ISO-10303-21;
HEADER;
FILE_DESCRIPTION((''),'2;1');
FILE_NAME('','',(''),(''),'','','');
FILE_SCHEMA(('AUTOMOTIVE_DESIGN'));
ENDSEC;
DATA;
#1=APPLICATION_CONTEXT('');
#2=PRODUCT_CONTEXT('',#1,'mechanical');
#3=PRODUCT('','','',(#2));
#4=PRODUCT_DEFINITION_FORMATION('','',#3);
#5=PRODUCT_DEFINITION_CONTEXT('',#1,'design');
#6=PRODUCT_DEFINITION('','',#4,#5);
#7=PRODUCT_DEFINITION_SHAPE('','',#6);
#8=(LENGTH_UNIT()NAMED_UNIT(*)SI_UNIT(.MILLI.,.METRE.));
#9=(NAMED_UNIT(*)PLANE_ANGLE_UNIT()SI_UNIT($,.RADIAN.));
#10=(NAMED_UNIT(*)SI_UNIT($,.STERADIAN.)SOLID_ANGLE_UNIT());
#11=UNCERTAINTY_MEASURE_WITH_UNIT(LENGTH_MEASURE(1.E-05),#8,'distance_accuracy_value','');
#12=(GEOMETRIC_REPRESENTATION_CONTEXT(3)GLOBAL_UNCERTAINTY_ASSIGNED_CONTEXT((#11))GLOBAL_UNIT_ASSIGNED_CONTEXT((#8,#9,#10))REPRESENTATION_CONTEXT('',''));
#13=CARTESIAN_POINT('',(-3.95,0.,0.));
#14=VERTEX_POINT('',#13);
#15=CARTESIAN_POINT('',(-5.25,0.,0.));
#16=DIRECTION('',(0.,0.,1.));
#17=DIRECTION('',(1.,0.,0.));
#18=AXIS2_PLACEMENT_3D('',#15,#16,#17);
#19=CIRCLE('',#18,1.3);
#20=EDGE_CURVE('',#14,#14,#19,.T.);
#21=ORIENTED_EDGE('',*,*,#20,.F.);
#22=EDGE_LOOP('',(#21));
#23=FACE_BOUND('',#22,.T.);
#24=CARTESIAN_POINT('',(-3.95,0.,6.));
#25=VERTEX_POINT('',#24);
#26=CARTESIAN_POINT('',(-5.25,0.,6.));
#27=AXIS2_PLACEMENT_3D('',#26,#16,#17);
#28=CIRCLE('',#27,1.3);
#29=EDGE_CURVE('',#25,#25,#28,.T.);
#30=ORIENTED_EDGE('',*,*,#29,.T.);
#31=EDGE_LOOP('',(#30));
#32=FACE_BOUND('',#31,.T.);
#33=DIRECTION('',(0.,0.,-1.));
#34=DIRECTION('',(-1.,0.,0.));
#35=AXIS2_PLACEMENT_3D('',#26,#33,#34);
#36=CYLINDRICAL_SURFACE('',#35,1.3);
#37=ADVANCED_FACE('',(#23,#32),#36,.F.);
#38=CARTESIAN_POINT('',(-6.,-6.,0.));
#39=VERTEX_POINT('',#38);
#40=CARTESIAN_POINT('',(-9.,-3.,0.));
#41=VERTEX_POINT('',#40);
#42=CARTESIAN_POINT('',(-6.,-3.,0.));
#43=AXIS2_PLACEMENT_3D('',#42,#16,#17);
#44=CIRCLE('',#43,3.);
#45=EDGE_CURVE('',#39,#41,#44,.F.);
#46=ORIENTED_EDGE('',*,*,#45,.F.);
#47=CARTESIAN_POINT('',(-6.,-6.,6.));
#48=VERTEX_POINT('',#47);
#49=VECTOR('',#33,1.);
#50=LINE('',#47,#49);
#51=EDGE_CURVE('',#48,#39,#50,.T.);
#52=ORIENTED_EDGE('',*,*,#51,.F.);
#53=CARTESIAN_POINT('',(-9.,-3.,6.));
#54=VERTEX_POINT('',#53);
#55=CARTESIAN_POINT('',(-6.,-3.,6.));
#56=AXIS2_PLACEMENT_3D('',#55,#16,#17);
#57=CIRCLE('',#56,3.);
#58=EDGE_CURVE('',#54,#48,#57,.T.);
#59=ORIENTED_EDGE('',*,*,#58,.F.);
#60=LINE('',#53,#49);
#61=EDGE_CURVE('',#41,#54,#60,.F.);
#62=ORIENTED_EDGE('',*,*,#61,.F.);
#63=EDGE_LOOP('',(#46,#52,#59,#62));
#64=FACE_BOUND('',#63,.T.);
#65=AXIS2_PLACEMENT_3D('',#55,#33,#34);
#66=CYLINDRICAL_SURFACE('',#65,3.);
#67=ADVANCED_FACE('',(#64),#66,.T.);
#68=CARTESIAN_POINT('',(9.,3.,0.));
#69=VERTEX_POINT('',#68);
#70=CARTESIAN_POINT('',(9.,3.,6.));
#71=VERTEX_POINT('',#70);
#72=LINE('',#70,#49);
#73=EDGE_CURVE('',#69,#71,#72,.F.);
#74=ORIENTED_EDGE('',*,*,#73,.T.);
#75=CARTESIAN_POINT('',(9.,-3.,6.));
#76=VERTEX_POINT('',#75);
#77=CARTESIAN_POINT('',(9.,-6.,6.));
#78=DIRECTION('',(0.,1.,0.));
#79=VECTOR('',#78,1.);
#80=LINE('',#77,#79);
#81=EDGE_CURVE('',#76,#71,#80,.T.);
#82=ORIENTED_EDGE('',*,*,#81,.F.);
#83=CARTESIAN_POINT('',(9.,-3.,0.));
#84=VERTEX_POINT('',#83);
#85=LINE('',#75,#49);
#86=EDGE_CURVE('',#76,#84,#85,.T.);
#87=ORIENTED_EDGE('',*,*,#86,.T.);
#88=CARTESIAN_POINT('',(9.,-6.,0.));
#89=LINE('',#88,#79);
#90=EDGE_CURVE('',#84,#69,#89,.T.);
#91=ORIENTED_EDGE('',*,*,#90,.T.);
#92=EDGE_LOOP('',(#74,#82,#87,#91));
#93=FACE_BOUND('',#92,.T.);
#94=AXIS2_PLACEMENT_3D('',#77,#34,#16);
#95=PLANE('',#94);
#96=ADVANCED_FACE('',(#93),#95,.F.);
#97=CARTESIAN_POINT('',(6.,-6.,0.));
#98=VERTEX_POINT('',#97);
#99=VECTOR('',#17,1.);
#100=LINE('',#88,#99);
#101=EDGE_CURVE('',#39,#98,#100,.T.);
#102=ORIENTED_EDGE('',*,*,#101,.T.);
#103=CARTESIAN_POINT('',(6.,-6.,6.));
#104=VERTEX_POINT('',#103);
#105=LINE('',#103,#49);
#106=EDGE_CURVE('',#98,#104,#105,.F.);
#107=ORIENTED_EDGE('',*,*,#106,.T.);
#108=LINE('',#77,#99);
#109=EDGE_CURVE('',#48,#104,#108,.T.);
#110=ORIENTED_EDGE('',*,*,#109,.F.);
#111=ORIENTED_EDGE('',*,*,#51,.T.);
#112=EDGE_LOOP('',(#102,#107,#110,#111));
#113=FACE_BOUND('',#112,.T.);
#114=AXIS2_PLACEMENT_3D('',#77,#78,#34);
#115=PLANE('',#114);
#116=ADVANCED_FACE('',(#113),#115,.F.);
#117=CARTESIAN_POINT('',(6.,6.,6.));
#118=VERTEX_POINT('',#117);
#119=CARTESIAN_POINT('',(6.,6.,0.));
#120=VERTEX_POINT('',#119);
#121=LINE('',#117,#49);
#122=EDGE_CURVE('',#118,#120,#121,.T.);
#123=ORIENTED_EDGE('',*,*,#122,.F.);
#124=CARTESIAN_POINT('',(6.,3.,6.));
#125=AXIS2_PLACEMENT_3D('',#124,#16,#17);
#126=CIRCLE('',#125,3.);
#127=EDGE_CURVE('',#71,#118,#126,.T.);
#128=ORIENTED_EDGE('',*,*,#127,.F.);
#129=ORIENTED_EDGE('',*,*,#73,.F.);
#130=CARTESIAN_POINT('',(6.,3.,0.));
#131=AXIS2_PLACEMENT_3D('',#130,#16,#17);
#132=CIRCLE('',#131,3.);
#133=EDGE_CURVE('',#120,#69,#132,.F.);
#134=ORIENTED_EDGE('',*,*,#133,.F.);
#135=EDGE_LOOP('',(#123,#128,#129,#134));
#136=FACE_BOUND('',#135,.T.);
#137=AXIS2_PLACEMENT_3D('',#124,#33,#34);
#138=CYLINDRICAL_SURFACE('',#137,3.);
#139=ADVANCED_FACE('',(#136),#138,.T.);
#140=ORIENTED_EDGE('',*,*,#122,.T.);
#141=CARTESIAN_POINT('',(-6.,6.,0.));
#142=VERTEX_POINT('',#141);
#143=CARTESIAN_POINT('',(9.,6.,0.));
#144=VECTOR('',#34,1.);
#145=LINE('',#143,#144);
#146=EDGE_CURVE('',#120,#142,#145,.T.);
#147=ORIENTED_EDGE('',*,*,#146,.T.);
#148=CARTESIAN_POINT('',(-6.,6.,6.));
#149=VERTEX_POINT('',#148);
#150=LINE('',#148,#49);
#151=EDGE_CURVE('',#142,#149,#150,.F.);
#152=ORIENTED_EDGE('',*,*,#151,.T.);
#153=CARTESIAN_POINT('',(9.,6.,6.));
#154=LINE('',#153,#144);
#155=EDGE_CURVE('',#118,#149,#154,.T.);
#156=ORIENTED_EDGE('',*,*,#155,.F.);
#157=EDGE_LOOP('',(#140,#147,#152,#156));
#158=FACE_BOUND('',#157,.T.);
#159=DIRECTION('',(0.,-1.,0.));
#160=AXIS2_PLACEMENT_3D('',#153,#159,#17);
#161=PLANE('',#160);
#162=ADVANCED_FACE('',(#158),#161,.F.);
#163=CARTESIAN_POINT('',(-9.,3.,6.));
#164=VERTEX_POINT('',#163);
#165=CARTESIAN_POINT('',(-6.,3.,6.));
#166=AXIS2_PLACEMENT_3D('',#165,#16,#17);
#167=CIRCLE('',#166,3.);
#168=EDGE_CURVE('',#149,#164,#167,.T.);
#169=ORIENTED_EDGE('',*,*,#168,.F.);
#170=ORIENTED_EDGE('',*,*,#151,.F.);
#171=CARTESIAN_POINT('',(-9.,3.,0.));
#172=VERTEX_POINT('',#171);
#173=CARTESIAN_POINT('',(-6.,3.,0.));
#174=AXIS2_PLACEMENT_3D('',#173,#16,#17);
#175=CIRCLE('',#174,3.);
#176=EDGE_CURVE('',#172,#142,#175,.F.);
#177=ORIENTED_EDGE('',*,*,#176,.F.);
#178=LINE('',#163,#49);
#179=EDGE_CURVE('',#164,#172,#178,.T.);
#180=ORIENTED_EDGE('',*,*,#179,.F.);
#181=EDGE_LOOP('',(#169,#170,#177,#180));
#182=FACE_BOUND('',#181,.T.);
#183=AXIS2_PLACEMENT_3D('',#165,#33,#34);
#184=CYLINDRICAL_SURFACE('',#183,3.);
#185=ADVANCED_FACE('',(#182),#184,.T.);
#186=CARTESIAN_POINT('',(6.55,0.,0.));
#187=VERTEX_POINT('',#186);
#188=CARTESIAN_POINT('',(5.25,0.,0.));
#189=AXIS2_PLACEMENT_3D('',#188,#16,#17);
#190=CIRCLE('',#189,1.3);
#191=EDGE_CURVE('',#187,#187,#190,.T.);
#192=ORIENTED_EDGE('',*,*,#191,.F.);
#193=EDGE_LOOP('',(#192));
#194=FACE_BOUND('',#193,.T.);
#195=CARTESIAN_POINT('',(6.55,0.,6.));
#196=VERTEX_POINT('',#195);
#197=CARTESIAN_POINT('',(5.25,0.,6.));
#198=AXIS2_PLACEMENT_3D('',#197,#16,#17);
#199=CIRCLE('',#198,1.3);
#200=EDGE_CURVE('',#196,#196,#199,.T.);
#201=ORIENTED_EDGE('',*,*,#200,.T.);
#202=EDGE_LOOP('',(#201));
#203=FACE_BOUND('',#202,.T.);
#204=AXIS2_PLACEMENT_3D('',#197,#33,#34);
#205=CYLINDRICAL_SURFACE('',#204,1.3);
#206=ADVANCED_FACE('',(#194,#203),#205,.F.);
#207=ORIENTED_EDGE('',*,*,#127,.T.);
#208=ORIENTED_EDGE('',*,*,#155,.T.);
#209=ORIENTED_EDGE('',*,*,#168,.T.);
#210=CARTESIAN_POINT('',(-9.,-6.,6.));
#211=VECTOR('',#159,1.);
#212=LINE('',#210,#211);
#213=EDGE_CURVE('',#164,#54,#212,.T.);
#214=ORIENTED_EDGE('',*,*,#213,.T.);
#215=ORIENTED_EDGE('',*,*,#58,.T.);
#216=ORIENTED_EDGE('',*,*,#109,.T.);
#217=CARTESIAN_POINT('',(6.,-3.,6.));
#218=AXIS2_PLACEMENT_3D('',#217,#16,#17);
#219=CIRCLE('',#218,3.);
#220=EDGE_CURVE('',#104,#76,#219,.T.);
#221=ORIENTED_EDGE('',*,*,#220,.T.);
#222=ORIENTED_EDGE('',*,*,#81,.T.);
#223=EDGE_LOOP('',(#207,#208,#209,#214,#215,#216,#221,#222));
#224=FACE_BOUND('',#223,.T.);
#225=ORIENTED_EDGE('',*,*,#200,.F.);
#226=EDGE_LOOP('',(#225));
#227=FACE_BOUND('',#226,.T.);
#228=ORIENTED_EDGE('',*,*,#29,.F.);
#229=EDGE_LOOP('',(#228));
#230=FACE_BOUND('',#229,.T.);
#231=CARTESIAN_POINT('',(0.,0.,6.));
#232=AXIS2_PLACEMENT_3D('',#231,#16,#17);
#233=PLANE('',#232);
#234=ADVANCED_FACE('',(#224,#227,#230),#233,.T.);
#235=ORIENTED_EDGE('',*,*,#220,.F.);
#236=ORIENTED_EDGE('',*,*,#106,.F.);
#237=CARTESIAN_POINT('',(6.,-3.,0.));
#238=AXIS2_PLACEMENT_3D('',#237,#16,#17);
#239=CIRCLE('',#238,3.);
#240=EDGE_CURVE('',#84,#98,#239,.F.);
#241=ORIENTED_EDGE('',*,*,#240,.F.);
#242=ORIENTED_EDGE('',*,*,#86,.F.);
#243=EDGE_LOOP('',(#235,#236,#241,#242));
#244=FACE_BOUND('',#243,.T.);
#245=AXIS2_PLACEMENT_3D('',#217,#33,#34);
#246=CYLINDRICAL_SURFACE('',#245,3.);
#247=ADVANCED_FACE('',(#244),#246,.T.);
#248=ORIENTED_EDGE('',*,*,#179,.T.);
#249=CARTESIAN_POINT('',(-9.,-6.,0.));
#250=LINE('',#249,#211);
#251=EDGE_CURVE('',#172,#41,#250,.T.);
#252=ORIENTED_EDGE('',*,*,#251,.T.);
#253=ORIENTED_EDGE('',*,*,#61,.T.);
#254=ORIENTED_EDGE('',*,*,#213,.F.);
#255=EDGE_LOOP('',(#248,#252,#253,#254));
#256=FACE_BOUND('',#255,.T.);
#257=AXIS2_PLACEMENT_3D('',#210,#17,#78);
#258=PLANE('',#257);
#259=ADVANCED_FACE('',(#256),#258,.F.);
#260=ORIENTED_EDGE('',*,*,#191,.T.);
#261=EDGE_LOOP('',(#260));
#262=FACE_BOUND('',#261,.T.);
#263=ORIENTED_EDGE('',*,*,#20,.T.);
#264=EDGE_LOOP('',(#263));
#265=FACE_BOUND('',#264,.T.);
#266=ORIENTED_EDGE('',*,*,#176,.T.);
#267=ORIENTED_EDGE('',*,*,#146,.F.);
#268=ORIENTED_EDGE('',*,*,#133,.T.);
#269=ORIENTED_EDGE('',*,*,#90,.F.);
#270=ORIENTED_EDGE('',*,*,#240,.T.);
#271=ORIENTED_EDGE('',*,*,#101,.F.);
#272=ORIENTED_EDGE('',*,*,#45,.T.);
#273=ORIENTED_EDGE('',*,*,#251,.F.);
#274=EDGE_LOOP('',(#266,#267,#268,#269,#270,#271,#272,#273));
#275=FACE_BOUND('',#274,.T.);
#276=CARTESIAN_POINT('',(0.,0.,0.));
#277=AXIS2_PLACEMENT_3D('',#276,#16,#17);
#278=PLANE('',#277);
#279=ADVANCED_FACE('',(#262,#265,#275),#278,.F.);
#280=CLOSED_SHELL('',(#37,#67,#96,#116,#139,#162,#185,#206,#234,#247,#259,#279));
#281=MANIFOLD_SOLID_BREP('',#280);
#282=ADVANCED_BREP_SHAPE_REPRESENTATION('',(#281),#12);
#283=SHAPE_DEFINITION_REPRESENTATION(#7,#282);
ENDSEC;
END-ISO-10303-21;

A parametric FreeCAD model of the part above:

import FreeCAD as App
import Part
import Sketcher


def edges_at(feature, points):
    """Names of the edges that pass closest to the given points."""
    edges = feature.Shape.Edges
    near = lambda p: min(range(len(edges)), key=lambda i: edges[i].distToShape(Part.Vertex(*p))[0])
    return sorted({f"Edge{near(p) + 1}" for p in points})

doc = App.newDocument("Part")
body = doc.addObject("PartDesign::Body", "Body")

sketch1 = body.newObject("Sketcher::SketchObject", "Sketch")
sketch1.AttachmentSupport = (doc.getObject("XY_Plane"), [""])
sketch1.MapMode = "FlatFace"
sketch1.addGeometry(Part.LineSegment(App.Vector(-9, 6, 0), App.Vector(-9, -6, 0)), False)
sketch1.addGeometry(Part.LineSegment(App.Vector(-9, -6, 0), App.Vector(9, -6, 0)), False)
sketch1.addGeometry(Part.LineSegment(App.Vector(9, -6, 0), App.Vector(9, 6, 0)), False)
sketch1.addGeometry(Part.LineSegment(App.Vector(9, 6, 0), App.Vector(-9, 6, 0)), False)
sketch1.addGeometry(Part.Circle(App.Vector(-5.2, 0, 0), App.Vector(0, 0, 1), 1.3), False)
sketch1.addGeometry(Part.Circle(App.Vector(5.2, 0, 0), App.Vector(0, 0, 1), 1.3), False)
sketch1.addConstraint(Sketcher.Constraint("Coincident", 0, 2, 1, 1))
sketch1.addConstraint(Sketcher.Constraint("Coincident", 1, 2, 2, 1))
sketch1.addConstraint(Sketcher.Constraint("Coincident", 2, 2, 3, 1))
sketch1.addConstraint(Sketcher.Constraint("Coincident", 3, 2, 0, 1))
sketch1.addConstraint(Sketcher.Constraint("Vertical", 0))
sketch1.addConstraint(Sketcher.Constraint("Horizontal", 1))
sketch1.addConstraint(Sketcher.Constraint("Vertical", 2))
sketch1.addConstraint(Sketcher.Constraint("Horizontal", 3))
sketch1.addConstraint(Sketcher.Constraint("Equal", 4, 5))
sketch1.addConstraint(Sketcher.Constraint("Symmetric", 4, 3, 5, 3, -1, 1))
sketch1.addConstraint(Sketcher.Constraint("Symmetric", 0, 2, 2, 2, -1, 1))
sketch1.addConstraint(Sketcher.Constraint("PointOnObject", 4, 3, -1))
sketch1.addConstraint(Sketcher.Constraint("Diameter", 4, 2.6))
sketch1.addConstraint(Sketcher.Constraint("DistanceX", 1, 1, 1, 2, 18.0))
sketch1.addConstraint(Sketcher.Constraint("DistanceY", 0, 2, 0, 1, 12.0))
sketch1.addConstraint(Sketcher.Constraint("DistanceX", 4, 3, 5, 3, 10.5))
pad1 = body.newObject("PartDesign::Pad", "Pad")
pad1.Profile = sketch1
pad1.Length = 6
doc.recompute()

fillet = body.newObject("PartDesign::Fillet", "Fillet")
fillet.Base = (pad1, edges_at(pad1, [
    (-9, 6, 3),
    (9, 6, 3),
    (9, -6, 3),
    (-9, -6, 3),
]))
fillet.Radius = 3

doc.recompute()
